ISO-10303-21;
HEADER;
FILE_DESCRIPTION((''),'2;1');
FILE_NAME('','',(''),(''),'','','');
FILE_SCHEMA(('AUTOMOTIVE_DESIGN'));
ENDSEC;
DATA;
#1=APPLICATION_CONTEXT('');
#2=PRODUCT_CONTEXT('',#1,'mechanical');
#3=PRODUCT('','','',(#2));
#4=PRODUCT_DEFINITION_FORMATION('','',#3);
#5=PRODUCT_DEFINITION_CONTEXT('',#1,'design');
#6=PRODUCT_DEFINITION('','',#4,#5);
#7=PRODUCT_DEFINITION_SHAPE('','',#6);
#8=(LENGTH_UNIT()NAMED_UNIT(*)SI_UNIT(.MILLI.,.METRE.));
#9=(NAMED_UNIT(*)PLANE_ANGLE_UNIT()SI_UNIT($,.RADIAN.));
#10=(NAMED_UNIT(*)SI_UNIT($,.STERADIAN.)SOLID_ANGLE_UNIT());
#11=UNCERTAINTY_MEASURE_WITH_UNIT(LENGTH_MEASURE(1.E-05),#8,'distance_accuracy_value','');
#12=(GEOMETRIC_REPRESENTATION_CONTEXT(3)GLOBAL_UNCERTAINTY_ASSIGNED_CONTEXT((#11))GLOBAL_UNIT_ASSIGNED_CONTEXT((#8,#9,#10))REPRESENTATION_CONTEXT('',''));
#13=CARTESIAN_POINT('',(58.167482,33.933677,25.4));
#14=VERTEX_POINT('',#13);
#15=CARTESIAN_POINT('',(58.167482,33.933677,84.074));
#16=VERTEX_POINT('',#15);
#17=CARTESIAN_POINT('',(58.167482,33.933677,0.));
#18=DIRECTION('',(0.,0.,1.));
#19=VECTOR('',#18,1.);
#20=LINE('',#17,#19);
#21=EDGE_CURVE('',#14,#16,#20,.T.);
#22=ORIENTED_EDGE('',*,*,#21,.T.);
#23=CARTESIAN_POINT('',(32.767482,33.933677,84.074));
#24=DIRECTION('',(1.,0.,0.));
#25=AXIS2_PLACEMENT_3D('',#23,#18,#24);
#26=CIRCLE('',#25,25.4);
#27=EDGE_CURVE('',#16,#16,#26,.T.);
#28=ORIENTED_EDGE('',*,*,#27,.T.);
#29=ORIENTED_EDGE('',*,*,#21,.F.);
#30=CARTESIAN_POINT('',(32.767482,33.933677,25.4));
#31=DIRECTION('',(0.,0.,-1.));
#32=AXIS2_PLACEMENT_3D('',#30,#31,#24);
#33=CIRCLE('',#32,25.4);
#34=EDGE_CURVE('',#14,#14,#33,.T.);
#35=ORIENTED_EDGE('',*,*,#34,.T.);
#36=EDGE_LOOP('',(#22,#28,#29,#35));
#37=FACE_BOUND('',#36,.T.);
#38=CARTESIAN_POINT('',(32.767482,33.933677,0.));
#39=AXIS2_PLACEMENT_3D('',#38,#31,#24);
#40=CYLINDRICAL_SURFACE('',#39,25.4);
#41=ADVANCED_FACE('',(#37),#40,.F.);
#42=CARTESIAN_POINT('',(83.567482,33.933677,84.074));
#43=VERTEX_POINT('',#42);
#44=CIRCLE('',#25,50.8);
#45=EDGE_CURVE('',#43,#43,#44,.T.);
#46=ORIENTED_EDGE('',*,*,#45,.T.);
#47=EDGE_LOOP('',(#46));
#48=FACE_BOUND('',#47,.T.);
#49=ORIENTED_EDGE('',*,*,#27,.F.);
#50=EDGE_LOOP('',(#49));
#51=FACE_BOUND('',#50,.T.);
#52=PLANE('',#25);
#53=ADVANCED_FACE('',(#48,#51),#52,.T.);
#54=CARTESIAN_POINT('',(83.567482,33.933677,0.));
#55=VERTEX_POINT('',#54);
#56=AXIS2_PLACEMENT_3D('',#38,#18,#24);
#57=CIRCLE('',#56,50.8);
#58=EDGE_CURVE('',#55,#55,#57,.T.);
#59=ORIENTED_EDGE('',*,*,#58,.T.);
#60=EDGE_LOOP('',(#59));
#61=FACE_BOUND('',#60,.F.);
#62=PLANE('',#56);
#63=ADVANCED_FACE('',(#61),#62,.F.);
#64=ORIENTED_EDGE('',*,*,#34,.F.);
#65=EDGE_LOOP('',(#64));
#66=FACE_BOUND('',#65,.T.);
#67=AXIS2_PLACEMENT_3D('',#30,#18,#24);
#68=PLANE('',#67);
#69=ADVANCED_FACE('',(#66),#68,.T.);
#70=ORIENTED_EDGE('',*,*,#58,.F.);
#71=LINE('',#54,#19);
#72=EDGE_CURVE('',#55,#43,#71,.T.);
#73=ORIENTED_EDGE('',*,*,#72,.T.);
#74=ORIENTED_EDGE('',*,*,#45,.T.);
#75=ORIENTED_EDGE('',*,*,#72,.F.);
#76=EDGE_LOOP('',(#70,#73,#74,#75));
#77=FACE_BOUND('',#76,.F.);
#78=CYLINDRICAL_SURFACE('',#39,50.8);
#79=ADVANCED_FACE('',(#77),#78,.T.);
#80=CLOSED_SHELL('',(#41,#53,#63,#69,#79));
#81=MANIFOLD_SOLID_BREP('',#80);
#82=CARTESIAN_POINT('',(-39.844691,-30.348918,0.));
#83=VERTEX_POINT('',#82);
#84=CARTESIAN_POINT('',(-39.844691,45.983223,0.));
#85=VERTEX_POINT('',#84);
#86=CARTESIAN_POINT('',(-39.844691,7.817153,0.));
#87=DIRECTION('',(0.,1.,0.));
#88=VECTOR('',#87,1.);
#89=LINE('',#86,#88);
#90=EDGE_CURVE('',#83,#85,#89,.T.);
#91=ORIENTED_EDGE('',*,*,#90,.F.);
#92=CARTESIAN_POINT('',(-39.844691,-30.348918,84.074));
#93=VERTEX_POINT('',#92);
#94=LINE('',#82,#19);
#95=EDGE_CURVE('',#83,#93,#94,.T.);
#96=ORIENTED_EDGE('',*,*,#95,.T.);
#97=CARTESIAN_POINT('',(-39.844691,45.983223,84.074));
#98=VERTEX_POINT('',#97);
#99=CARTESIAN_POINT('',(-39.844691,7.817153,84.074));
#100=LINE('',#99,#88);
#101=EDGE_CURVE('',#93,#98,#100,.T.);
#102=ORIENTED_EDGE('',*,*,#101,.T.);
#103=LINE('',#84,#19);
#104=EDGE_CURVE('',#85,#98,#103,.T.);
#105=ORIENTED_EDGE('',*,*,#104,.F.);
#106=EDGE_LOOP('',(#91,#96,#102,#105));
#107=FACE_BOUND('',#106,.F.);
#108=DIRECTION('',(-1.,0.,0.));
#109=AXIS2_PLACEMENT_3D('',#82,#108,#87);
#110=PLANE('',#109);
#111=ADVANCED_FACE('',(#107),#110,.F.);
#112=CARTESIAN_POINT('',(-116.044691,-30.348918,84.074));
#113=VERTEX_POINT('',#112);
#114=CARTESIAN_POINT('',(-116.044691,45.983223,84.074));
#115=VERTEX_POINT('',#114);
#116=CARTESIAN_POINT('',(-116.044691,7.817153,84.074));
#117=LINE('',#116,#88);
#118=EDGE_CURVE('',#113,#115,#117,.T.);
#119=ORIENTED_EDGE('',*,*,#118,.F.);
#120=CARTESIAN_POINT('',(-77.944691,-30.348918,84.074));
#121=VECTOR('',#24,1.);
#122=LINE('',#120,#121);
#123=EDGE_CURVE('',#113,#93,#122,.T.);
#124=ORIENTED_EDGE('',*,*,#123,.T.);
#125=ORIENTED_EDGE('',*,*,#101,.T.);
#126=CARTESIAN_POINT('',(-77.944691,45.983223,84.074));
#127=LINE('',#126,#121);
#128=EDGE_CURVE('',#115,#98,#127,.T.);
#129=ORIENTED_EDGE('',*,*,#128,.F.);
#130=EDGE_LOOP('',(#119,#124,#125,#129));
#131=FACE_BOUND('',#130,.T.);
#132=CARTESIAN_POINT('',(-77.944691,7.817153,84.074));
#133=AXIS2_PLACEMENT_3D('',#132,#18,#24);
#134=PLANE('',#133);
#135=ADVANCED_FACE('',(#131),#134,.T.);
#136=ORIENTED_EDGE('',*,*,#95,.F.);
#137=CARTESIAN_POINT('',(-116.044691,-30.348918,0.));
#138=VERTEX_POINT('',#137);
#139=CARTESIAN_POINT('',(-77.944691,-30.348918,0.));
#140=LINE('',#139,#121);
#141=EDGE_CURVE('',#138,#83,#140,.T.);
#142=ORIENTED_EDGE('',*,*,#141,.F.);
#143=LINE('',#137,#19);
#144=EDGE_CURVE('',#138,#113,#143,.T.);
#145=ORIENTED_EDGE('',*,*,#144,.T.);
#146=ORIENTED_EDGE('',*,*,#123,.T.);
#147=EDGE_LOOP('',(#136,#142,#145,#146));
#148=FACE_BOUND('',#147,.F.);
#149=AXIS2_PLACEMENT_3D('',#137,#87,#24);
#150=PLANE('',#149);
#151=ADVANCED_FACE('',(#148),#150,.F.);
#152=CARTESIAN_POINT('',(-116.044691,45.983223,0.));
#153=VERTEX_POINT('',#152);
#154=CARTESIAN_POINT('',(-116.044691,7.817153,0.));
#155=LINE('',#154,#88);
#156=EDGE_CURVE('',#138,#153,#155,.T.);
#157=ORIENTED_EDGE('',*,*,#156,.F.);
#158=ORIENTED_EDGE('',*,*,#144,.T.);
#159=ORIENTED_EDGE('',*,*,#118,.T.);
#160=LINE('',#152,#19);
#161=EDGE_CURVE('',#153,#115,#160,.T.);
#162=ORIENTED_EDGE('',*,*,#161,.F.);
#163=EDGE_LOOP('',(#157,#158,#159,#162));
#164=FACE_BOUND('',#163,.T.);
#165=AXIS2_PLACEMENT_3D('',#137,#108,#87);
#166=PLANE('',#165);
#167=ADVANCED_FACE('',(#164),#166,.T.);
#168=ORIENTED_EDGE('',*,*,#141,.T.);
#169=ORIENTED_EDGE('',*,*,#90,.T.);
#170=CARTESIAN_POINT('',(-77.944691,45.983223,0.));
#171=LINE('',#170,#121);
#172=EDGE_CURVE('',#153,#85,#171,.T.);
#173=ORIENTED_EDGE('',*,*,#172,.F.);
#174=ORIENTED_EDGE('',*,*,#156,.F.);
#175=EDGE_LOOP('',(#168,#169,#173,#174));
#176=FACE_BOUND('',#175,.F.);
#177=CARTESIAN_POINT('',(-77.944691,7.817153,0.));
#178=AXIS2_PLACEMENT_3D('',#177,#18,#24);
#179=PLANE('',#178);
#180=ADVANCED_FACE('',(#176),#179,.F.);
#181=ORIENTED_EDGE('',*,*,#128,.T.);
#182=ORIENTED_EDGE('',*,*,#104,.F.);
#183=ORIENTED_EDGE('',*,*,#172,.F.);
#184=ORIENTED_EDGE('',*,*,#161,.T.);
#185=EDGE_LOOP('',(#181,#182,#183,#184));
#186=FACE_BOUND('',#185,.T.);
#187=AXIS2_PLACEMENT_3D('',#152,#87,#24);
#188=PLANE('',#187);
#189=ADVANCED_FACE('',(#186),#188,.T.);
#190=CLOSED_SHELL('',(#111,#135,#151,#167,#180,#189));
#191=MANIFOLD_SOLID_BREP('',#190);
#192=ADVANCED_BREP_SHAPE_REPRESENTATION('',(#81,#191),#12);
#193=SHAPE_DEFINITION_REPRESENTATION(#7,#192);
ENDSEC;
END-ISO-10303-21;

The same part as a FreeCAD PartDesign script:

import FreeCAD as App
import Part
import Sketcher

V = App.Vector
Q = App.Units.Quantity


def faces_at(feature, points):
    """Names of the faces that lie closest to the given points."""
    faces = feature.Shape.Faces
    near = lambda p: min(range(len(faces)), key=lambda i: faces[i].distToShape(Part.Vertex(*p))[0])
    return sorted({f"Face{near(p) + 1}" for p in points})


def add_polygon(sketch, points):
    """Adds a closed chain of lines whose ends are joined by coincident constraints."""
    first, n = sketch.GeometryCount, len(points)
    for a, b in zip(points, points[1:] + points[:1]):
        sketch.addGeometry(Part.LineSegment(App.Vector(*a, 0), App.Vector(*b, 0)), False)
    for i in range(n):
        sketch.addConstraint(Sketcher.Constraint("Coincident", first + i, 2, first + (i + 1) % n, 1))

doc = App.newDocument("Part")
params = doc.addObject("Spreadsheet::Sheet", "Params")
for row, (alias, value) in enumerate([
    ("sketch1_width", "3 in"),
    ("pad1_length", "3.31 in"),
    ("sketch2_diameter", "4 in"),
    ("pad2_length", "3.31 in"),
    ("thickness_wall", "1 in"),
], start=1):
    params.set(f"A{row}", alias)
    params.set(f"B{row}", "=" + value)
    params.setAlias(f"B{row}", alias)

body = doc.addObject("PartDesign::Body", "Body")

# Sketch on XY plane
sketch1 = body.newObject("Sketcher::SketchObject", "Sketch")
sketch1.AttachmentSupport = (doc.getObject("XY_Plane"), [""])
sketch1.MapMode = "FlatFace"
add_polygon(sketch1, [(-116, 46), (-116, -30), (-40, -30), (-40, 46)])  # lines 0-3
sketch1.addConstraint([
    Sketcher.Constraint("Vertical", 0),
    Sketcher.Constraint("Horizontal", 1),
    Sketcher.Constraint("Vertical", 2),
    Sketcher.Constraint("Horizontal", 3),
    Sketcher.Constraint("DistanceX", 1, 1, 1, 2, Q("3 in")),
    Sketcher.Constraint("DistanceY", 0, 2, 0, 1, Q("76.332141 mm")),
    Sketcher.Constraint("DistanceX", 0, 2, -1, 1, Q("116.044691 mm")),
    Sketcher.Constraint("DistanceY", 0, 2, -1, 1, Q("30.348918 mm")),
])
sketch1.setExpression("Constraints[8]", "Params.sketch1_width")
pad1 = body.newObject("PartDesign::Pad", "Pad")
pad1.Profile = sketch1
pad1.setExpression("Length", "Params.pad1_length")
body2 = doc.addObject("PartDesign::Body", "Body001")

# Sketch on XY plane
sketch2 = body2.newObject("Sketcher::SketchObject", "Sketch001")
sketch2.AttachmentSupport = (doc.getObject("XY_Plane001"), [""])
sketch2.MapMode = "FlatFace"
sketch2.addGeometry(Part.Circle(V(33, 34, 0), V(0, 0, 1), 51), False)
sketch2.addConstraint([
    Sketcher.Constraint("Diameter", 0, Q("4 in")),
    Sketcher.Constraint("DistanceX", -1, 1, 0, 3, Q("32.767482 mm")),
    Sketcher.Constraint("DistanceY", -1, 1, 0, 3, Q("33.933677 mm")),
])
sketch2.setExpression("Constraints[0]", "Params.sketch2_diameter")
pad2 = body2.newObject("PartDesign::Pad", "Pad001")
pad2.Profile = sketch2
pad2.setExpression("Length", "Params.pad2_length")
doc.recompute()

thickness = body2.newObject("PartDesign::Thickness", "Thickness")
thickness.Base = (pad2, faces_at(pad2, [(32.767, 33.934, 84.074)]))
thickness.setExpression("Value", "Params.thickness_wall")
thickness.Reversed = True
thickness.Join = "Arc"

doc.recompute()
